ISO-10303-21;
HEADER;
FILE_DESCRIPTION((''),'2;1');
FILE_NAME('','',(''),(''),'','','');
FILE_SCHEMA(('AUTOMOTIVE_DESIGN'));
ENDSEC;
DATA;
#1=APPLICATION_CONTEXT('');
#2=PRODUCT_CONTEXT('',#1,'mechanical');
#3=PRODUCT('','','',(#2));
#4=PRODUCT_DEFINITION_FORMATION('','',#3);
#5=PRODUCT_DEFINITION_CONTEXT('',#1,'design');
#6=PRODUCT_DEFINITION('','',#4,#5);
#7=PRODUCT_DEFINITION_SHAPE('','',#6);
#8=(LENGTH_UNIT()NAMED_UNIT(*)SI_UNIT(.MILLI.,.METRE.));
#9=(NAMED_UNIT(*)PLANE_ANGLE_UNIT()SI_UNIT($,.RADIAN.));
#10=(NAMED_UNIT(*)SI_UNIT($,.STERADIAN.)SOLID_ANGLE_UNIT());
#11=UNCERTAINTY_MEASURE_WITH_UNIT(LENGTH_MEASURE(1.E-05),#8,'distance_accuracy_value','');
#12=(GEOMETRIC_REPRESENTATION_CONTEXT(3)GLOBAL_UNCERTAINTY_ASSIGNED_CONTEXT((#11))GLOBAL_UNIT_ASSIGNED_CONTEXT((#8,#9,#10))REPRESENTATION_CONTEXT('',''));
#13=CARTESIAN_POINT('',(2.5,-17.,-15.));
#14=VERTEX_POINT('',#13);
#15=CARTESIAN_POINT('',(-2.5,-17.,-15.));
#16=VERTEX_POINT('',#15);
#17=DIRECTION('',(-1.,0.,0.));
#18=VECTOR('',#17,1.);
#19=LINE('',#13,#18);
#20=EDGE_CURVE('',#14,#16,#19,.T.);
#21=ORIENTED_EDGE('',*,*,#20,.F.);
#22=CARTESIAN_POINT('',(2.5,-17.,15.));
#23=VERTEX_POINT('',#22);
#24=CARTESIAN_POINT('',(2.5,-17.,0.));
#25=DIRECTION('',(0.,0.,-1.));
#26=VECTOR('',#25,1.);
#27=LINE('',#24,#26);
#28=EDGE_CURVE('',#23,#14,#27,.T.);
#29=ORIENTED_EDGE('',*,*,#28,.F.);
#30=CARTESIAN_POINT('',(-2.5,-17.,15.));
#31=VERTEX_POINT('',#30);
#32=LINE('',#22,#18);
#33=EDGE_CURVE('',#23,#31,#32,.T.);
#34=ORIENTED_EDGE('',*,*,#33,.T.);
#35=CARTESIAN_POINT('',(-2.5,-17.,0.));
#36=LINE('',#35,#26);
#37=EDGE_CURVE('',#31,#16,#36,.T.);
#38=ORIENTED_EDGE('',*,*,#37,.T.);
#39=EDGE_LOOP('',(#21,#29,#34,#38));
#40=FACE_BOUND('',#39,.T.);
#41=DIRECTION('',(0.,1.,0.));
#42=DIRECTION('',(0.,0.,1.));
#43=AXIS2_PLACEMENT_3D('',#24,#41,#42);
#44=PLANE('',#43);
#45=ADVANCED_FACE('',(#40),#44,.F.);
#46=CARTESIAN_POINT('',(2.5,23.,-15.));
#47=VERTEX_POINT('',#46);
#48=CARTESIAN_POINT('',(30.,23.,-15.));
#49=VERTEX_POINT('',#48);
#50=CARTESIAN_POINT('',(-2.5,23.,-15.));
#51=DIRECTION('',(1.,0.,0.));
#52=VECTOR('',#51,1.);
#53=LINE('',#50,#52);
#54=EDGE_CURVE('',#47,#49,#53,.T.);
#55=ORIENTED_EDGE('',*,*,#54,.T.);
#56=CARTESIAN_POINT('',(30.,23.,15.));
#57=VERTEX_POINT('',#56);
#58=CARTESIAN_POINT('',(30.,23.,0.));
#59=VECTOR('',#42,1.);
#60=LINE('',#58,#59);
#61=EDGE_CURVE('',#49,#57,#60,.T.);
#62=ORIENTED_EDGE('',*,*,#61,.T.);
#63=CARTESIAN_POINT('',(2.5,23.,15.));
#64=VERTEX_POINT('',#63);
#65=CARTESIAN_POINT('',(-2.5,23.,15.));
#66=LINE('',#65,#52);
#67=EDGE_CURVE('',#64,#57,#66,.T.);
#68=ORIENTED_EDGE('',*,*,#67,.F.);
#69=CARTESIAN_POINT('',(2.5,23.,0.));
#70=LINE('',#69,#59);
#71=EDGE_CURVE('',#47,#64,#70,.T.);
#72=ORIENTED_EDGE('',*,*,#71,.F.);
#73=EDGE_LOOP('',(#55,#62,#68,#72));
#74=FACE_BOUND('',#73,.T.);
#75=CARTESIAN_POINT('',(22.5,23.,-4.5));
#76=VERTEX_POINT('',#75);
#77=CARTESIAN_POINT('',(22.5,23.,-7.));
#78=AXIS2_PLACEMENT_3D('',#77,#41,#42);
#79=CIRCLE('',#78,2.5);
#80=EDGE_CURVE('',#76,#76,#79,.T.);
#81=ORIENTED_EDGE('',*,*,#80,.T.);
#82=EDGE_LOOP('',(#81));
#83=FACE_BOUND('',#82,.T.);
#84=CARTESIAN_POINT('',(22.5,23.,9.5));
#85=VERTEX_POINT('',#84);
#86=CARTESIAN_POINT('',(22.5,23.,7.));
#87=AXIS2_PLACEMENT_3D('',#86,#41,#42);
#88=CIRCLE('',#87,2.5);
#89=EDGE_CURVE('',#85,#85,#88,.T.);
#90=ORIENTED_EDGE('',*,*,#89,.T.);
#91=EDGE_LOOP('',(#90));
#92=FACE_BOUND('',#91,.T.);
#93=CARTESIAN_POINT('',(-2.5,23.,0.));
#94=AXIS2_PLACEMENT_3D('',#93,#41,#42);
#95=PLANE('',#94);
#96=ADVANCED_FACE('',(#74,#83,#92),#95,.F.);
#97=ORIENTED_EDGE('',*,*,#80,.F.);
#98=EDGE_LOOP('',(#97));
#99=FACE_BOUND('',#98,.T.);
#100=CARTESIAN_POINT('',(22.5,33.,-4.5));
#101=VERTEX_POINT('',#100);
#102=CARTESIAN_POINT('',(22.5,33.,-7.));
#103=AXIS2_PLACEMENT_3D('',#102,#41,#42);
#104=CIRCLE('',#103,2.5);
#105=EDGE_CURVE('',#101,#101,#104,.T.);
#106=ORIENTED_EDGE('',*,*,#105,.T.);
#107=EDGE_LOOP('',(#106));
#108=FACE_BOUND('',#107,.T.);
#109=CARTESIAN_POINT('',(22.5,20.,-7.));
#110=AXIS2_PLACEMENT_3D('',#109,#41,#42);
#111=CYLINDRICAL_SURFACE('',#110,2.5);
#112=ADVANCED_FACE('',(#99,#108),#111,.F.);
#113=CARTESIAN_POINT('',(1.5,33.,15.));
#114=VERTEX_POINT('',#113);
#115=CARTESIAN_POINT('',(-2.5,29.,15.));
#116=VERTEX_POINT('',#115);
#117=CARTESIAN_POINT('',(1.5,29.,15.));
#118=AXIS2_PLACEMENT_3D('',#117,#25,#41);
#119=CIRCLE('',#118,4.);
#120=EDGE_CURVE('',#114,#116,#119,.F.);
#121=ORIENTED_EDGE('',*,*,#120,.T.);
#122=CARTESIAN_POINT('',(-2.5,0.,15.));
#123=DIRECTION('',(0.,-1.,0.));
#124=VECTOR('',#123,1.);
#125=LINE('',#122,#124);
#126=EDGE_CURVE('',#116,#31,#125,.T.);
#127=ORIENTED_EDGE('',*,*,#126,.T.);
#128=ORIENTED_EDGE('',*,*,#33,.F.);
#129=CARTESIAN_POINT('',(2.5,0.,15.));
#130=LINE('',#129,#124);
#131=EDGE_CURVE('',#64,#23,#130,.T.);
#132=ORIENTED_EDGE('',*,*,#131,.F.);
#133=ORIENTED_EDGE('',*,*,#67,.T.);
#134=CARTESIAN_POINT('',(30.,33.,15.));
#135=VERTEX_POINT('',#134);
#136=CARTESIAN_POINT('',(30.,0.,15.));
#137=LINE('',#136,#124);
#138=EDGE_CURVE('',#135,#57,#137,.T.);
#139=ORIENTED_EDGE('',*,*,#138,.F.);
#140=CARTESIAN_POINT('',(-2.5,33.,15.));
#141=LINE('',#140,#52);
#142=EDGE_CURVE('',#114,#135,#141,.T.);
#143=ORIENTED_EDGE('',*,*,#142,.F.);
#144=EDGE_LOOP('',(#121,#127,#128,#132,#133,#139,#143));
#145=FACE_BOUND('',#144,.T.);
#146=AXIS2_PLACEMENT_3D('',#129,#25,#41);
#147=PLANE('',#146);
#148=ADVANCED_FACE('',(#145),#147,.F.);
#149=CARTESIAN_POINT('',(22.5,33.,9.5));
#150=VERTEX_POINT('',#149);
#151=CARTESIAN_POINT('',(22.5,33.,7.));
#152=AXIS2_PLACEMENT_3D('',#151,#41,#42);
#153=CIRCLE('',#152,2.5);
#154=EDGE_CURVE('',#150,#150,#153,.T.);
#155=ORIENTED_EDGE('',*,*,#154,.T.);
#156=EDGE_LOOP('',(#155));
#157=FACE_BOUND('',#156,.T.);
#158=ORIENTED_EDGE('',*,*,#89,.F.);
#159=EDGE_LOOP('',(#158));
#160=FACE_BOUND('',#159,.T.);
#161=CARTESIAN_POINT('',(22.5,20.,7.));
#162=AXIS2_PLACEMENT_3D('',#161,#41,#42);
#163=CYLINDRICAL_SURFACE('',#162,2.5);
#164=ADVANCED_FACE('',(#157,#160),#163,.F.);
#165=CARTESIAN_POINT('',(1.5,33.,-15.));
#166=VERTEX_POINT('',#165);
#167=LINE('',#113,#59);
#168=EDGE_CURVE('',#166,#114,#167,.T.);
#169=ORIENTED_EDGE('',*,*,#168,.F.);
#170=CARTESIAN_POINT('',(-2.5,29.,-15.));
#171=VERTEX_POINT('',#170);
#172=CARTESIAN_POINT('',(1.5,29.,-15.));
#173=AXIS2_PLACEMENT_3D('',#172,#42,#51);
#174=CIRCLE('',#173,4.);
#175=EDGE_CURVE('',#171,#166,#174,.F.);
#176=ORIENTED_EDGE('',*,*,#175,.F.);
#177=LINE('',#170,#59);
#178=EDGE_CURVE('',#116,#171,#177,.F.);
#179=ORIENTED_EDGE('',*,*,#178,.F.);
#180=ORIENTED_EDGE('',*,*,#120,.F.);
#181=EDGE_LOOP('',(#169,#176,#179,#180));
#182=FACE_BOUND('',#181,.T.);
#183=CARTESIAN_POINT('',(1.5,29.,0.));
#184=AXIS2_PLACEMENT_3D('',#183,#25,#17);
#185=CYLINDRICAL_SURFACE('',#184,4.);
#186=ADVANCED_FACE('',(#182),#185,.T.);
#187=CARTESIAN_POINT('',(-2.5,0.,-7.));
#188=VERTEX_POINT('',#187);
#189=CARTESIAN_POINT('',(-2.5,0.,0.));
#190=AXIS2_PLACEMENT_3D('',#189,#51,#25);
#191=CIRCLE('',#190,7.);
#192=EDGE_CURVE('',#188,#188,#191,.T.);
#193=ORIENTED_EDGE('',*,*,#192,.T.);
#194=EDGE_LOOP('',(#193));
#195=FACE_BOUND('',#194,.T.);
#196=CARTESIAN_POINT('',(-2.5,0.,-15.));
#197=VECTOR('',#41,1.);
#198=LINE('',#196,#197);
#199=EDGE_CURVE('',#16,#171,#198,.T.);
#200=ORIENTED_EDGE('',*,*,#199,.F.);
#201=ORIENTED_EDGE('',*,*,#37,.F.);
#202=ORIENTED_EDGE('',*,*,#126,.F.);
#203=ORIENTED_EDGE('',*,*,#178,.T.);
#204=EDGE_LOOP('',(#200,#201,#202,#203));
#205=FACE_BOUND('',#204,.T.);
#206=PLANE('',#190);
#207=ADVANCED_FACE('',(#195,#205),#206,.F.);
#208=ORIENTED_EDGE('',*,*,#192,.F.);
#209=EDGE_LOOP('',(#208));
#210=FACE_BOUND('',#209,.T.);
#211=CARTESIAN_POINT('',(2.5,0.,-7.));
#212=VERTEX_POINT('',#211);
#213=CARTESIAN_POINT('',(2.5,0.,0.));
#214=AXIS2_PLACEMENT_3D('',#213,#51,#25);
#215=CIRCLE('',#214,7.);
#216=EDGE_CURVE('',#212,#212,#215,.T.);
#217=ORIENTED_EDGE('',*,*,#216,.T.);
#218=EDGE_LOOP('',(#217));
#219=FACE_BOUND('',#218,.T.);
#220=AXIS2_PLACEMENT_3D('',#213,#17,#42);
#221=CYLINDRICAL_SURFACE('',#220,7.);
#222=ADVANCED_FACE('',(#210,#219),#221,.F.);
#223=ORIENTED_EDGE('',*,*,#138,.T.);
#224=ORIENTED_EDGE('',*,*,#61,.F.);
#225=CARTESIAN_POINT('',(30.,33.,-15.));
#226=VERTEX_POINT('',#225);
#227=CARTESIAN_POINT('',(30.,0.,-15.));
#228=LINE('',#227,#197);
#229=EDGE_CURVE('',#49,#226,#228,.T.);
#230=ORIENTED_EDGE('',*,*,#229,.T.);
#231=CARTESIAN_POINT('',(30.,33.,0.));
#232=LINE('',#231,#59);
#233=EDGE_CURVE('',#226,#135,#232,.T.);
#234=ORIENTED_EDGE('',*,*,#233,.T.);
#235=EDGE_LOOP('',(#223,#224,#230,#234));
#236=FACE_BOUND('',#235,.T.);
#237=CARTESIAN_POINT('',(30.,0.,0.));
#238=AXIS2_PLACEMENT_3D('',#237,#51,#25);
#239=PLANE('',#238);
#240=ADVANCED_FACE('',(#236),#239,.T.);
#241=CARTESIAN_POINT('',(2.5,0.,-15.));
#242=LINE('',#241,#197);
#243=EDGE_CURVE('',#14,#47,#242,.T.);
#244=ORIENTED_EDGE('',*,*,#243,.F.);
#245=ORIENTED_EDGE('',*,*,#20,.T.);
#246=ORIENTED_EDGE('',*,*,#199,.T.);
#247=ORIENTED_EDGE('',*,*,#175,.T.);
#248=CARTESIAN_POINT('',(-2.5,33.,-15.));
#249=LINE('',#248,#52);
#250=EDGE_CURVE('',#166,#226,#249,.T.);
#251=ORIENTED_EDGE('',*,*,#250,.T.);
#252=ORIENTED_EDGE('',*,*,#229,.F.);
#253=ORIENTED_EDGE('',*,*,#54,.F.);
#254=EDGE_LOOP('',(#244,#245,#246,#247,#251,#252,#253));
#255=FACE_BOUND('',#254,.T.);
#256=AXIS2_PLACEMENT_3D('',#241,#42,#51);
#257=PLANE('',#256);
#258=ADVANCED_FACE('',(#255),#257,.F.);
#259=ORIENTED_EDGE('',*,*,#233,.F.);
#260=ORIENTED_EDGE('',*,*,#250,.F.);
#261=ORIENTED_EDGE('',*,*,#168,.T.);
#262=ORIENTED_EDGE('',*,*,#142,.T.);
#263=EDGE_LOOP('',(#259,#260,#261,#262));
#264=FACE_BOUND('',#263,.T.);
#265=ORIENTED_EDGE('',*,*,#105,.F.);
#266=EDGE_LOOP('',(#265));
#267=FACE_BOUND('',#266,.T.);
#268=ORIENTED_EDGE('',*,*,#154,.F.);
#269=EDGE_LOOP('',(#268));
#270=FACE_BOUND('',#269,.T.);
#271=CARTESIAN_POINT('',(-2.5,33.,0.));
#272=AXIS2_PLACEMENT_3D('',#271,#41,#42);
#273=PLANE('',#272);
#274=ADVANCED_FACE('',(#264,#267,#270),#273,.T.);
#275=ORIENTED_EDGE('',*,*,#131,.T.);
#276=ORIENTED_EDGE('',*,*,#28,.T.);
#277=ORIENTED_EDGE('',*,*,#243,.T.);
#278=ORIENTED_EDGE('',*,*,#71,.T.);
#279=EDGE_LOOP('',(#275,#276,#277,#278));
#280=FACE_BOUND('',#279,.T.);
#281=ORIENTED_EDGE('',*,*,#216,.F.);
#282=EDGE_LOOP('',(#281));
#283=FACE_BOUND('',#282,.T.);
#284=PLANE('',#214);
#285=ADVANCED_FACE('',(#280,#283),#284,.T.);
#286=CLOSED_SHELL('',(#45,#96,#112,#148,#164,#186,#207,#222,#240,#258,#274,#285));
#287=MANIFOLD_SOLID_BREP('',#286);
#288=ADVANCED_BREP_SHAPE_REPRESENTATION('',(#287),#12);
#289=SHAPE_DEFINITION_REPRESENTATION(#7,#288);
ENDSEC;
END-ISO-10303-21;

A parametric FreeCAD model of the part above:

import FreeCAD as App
import Part
import Sketcher

V = App.Vector
Q = App.Units.Quantity


def edges_at(feature, points):
    """Names of the edges that pass closest to the given points."""
    edges = feature.Shape.Edges
    near = lambda p: min(range(len(edges)), key=lambda i: edges[i].distToShape(Part.Vertex(*p))[0])
    return sorted({f"Edge{near(p) + 1}" for p in points})

doc = App.newDocument("Part")
params = doc.addObject("Spreadsheet::Sheet", "Params")
for row, (alias, value) in enumerate([
    ("sketch1_diameter", "14 mm"),
    ("sketch1_width", "40 mm"),
    ("sketch1_height", "30 mm"),
    ("pad1_length", "5 mm"),
    ("sketch2_width", "10 mm"),
    ("sketch2_height", "30 mm"),
    ("pad2_length", "30 mm"),
    ("pad2_length2", "2.5 mm"),
    ("sketch3_diameter", "5 mm"),
    ("pocket1_length", "13 mm"),
    ("fillet_radius", "4 mm"),
], start=1):
    params.set(f"A{row}", alias)
    params.set(f"B{row}", "=" + value)
    params.setAlias(f"B{row}", alias)

body = doc.addObject("PartDesign::Body", "Body")

sketch1 = body.newObject("Sketcher::SketchObject", "Sketch")
sketch1.AttachmentSupport = (doc.getObject("YZ_Plane"), [""])
sketch1.MapMode = "FlatFace"
sketch1.addGeometry([
    Part.LineSegment(V(23, 15, 0), V(-17, 15, 0)),
    Part.LineSegment(V(-17, 15, 0), V(-17, -15, 0)),
    Part.LineSegment(V(-17, -15, 0), V(23, -15, 0)),
    Part.LineSegment(V(23, -15, 0), V(23, 15, 0)),
    Part.Circle(V(0, 0, 0), V(0, 0, 1), 7),
], False)
sketch1.addConstraint([
    Sketcher.Constraint("Coincident", 0, 2, 1, 1),
    Sketcher.Constraint("Coincident", 1, 2, 2, 1),
    Sketcher.Constraint("Coincident", 2, 2, 3, 1),
    Sketcher.Constraint("Coincident", 3, 2, 0, 1),
    Sketcher.Constraint("Horizontal", 0),
    Sketcher.Constraint("Vertical", 1),
    Sketcher.Constraint("Horizontal", 2),
    Sketcher.Constraint("Vertical", 3),
    Sketcher.Constraint("Coincident", 4, 3, -1, 1),
    Sketcher.Constraint("Diameter", 4, Q("14 mm")),
    Sketcher.Constraint("DistanceX", 0, 2, 0, 1, Q("40 mm")),
    Sketcher.Constraint("DistanceY", 1, 2, 1, 1, Q("30 mm")),
    Sketcher.Constraint("DistanceX", 0, 2, -1, 1, Q("17 mm")),
    Sketcher.Constraint("DistanceY", -1, 1, 0, 2, Q("15 mm")),
])
sketch1.setExpression("Constraints[9]", "Params.sketch1_diameter")
sketch1.setExpression("Constraints[10]", "Params.sketch1_width")
sketch1.setExpression("Constraints[11]", "Params.sketch1_height")
pad1 = body.newObject("PartDesign::Pad", "Pad")
pad1.Profile = sketch1
pad1.setExpression("Length", "Params.pad1_length")
pad1.Midplane = True

sketch2 = body.newObject("Sketcher::SketchObject", "Sketch001")
sketch2.AttachmentSupport = (doc.getObject("YZ_Plane"), [""])
sketch2.MapMode = "FlatFace"
sketch2.addGeometry([
    Part.LineSegment(V(23, 15, 0), V(23, -15, 0)),
    Part.LineSegment(V(23, -15, 0), V(33, -15, 0)),
    Part.LineSegment(V(33, -15, 0), V(33, 15, 0)),
    Part.LineSegment(V(33, 15, 0), V(23, 15, 0)),
], False)
sketch2.addConstraint([
    Sketcher.Constraint("Coincident", 0, 2, 1, 1),
    Sketcher.Constraint("Coincident", 1, 2, 2, 1),
    Sketcher.Constraint("Coincident", 2, 2, 3, 1),
    Sketcher.Constraint("Coincident", 3, 2, 0, 1),
    Sketcher.Constraint("Vertical", 0),
    Sketcher.Constraint("Horizontal", 1),
    Sketcher.Constraint("Vertical", 2),
    Sketcher.Constraint("Horizontal", 3),
    Sketcher.Constraint("DistanceX", 1, 1, 1, 2, Q("10 mm")),
    Sketcher.Constraint("DistanceY", 0, 2, 0, 1, Q("30 mm")),
    Sketcher.Constraint("DistanceX", -1, 1, 0, 2, Q("23 mm")),
    Sketcher.Constraint("DistanceY", 0, 2, -1, 1, Q("15 mm")),
])
sketch2.setExpression("Constraints[8]", "Params.sketch2_width")
sketch2.setExpression("Constraints[9]", "Params.sketch2_height")
pad2 = body.newObject("PartDesign::Pad", "Pad001")
pad2.Profile = sketch2
pad2.Type = "TwoLengths"
pad2.setExpression("Length", "Params.pad2_length")
pad2.setExpression("Length2", "Params.pad2_length2")

sketch3 = body.newObject("Sketcher::SketchObject", "Sketch002")
sketch3.AttachmentSupport = (doc.getObject("XZ_Plane"), [""])
sketch3.MapMode = "FlatFace"
sketch3.AttachmentOffset = App.Placement(V(0, 0, -33), App.Rotation())
sketch3.addGeometry([
    Part.Circle(V(22.5, 7, 0), V(0, 0, 1), 2.5),
    Part.Circle(V(22.5, -7, 0), V(0, 0, 1), 2.5),
], False)
sketch3.addConstraint([
    Sketcher.Constraint("Equal", 0, 1),
    Sketcher.Constraint("Symmetric", 0, 3, 1, 3, -1),
    Sketcher.Constraint("Diameter", 0, Q("5 mm")),
    Sketcher.Constraint("DistanceY", -1, 1, 0, 3, Q("7 mm")),
    Sketcher.Constraint("DistanceX", -1, 1, 0, 3, Q("22.5 mm")),
])
sketch3.setExpression("Constraints[2]", "Params.sketch3_diameter")
pocket1 = body.newObject("PartDesign::Pocket", "Pocket")
pocket1.Profile = sketch3
pocket1.setExpression("Length", "Params.pocket1_length")
pocket1.Reversed = True
doc.recompute()

fillet = body.newObject("PartDesign::Fillet", "Fillet")
fillet.Base = (pocket1, edges_at(pocket1, [(-2.5, 33, 0)]))
fillet.setExpression("Radius", "Params.fillet_radius")

doc.recompute()
